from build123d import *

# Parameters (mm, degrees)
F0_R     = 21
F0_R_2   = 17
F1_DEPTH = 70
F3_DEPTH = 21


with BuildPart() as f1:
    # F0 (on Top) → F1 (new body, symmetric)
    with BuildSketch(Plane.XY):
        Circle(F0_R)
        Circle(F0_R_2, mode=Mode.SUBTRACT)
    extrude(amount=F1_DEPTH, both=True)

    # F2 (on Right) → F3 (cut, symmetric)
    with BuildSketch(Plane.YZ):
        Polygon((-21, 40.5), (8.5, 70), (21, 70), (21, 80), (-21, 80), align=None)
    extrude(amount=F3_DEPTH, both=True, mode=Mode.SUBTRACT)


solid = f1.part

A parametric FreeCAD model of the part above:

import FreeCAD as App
import Part
import Sketcher
from FreeCAD import Vector
Q = App.Units.Quantity


def add_polygon(sketch, points):
    """Adds a closed chain of lines whose ends are joined by coincident constraints."""
    first, n = sketch.GeometryCount, len(points)
    for a, b in zip(points, points[1:] + points[:1]):
        sketch.addGeometry(Part.LineSegment(App.Vector(*a, 0), App.Vector(*b, 0)), False)
    for i in range(n):
        sketch.addConstraint(Sketcher.Constraint("Coincident", first + i, 2, first + (i + 1) % n, 1))

doc = App.newDocument("Part")
body = doc.addObject("PartDesign::Body", "Body")

# Sketch on XY plane
sketch1 = body.newObject("Sketcher::SketchObject", "Sketch")
sketch1.AttachmentSupport = (doc.getObject("XY_Plane"), [""])
sketch1.MapMode = "FlatFace"
sketch1.addGeometry([
    Part.Circle(Vector(0, 0, 0), Vector(0, 0, 1), 21),
    Part.Circle(Vector(0, 0, 0), Vector(0, 0, 1), 17),
], False)
sketch1.addConstraint([
    Sketcher.Constraint("Coincident", 0, 3, -1, 1),
    Sketcher.Constraint("Coincident", 1, 3, -1, 1),
    Sketcher.Constraint("Diameter", 0, 42.0),
    Sketcher.Constraint("Diameter", 1, 34.0),
])
pad1 = body.newObject("PartDesign::Pad", "Pad")
pad1.Profile = sketch1
pad1.Length = 140
pad1.Midplane = True

# Sketch on YZ plane
sketch2 = body.newObject("Sketcher::SketchObject", "Sketch001")
sketch2.AttachmentSupport = (doc.getObject("YZ_Plane"), [""])
sketch2.MapMode = "FlatFace"
add_polygon(sketch2, [(-21, 40), (8, 70), (21, 70), (21, 80), (-21, 80)])  # lines 0-4
sketch2.addConstraint([
    Sketcher.Constraint("Horizontal", 1),
    Sketcher.Constraint("Vertical", 2),
    Sketcher.Constraint("Horizontal", 3),
    Sketcher.Constraint("Vertical", 4),
    Sketcher.Constraint("DistanceX", 3, 2, 3, 1, 42.0),
    Sketcher.Constraint("DistanceY", 2, 1, 2, 2, 10.0),
    Sketcher.Constraint("Angle", 0, Q("45 deg")),
    Sketcher.Constraint("DistanceX", 1, 1, 1, 2, 12.5),
    Sketcher.Constraint("DistanceY", -1, 1, 0, 2, 70.0),
    Sketcher.Constraint("DistanceX", -1, 1, 1, 2, 21.0),
])
pocket1 = body.newObject("PartDesign::Pocket", "Pocket")
pocket1.Profile = sketch2
pocket1.Length = 42
pocket1.Midplane = True

doc.recompute()
